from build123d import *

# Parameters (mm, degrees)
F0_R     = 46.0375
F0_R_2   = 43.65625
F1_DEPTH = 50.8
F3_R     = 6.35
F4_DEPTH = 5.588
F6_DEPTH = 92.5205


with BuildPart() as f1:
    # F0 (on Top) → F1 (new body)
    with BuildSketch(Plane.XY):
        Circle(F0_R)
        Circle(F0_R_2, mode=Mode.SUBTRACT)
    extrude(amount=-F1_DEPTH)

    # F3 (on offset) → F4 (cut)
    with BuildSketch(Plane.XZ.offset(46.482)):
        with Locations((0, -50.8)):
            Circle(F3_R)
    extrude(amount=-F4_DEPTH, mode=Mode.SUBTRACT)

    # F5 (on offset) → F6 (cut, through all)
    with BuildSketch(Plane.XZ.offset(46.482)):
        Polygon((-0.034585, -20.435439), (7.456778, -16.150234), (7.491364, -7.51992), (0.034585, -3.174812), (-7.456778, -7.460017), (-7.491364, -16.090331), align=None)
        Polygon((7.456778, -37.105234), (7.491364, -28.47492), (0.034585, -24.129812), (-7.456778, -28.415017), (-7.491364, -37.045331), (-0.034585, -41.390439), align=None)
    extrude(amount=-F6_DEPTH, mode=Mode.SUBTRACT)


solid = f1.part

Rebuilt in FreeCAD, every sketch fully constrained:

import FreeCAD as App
import Part
import Sketcher
from FreeCAD import Vector
Q = App.Units.Quantity

doc = App.newDocument("Part")
body = doc.addObject("PartDesign::Body", "Body")

sketch1 = doc.addObject("Sketcher::SketchObject", "Sketch")
body.addObject(sketch1)
sketch1.AttachmentSupport = (doc.XY_Plane, [""])
sketch1.MapMode = "FlatFace"
sketch1.addGeometry(Part.Circle(Vector(0, 0, 0), Vector(0, 0, 1), 46), False)
sketch1.addGeometry(Part.Circle(Vector(0, 0, 0), Vector(0, 0, 1), 44), False)
sketch1.addConstraint(Sketcher.Constraint("Coincident", 0, 3, -1, 1))
sketch1.addConstraint(Sketcher.Constraint("Coincident", 1, 3, -1, 1))
sketch1.addConstraint(Sketcher.Constraint("Diameter", 0, Q("3.625 in")))
sketch1.addConstraint(Sketcher.Constraint("Diameter", 1, Q("3.4375 in")))
pad1 = doc.addObject("PartDesign::Pad", "Pad")
body.addObject(pad1)
pad1.Profile = sketch1
pad1.Length = Q("2 in")
pad1.Reversed = True

sketch2 = doc.addObject("Sketcher::SketchObject", "Sketch001")
body.addObject(sketch2)
sketch2.AttachmentSupport = (doc.XZ_Plane, [""])
sketch2.MapMode = "FlatFace"
sketch2.AttachmentOffset = App.Placement(Vector(0, 0, 1.83 * 25.4), App.Rotation())
sketch2.addGeometry(Part.Circle(Vector(0, -51, 0), Vector(0, 0, 1), 6), False)
sketch2.addConstraint(Sketcher.Constraint("PointOnObject", 0, 3, -2))
sketch2.addConstraint(Sketcher.Constraint("Diameter", 0, Q("0.5 in")))
sketch2.addConstraint(Sketcher.Constraint("DistanceY", 0, 3, -1, 1, Q("2 in")))
pocket1 = doc.addObject("PartDesign::Pocket", "Pocket")
body.addObject(pocket1)
pocket1.Profile = sketch2
pocket1.Length = Q("0.22 in")

sketch3 = doc.addObject("Sketcher::SketchObject", "Sketch002")
body.addObject(sketch3)
sketch3.AttachmentSupport = (doc.XZ_Plane, [""])
sketch3.MapMode = "FlatFace"
sketch3.AttachmentOffset = App.Placement(Vector(0, 0, 1.83 * 25.4), App.Rotation())
sketch3.addGeometry(Part.LineSegment(Vector(-0.034585, -20.435439, 0), Vector(7.456778, -16.150234, 0)), False)
sketch3.addGeometry(Part.LineSegment(Vector(7.456778, -16.150234, 0), Vector(7.491364, -7.51992, 0)), False)
sketch3.addGeometry(Part.LineSegment(Vector(7.491364, -7.51992, 0), Vector(0.034585, -3.174812, 0)), False)
sketch3.addGeometry(Part.LineSegment(Vector(0.034585, -3.174812, 0), Vector(-7.456778, -7.460017, 0)), False)
sketch3.addGeometry(Part.LineSegment(Vector(-7.456778, -7.460017, 0), Vector(-7.491364, -16.090331, 0)), False)
sketch3.addGeometry(Part.LineSegment(Vector(-7.491364, -16.090331, 0), Vector(-0.034585, -20.435439, 0)), False)
sketch3.addGeometry(Part.LineSegment(Vector(7.456778, -37.105234, 0), Vector(7.491364, -28.47492, 0)), False)
sketch3.addGeometry(Part.LineSegment(Vector(7.491364, -28.47492, 0), Vector(0.034585, -24.129812, 0)), False)
sketch3.addGeometry(Part.LineSegment(Vector(0.034585, -24.129812, 0), Vector(-7.456778, -28.415017, 0)), False)
sketch3.addGeometry(Part.LineSegment(Vector(-7.456778, -28.415017, 0), Vector(-7.491364, -37.045331, 0)), False)
sketch3.addGeometry(Part.LineSegment(Vector(-7.491364, -37.045331, 0), Vector(-0.034585, -41.390439, 0)), False)
sketch3.addGeometry(Part.LineSegment(Vector(-0.034585, -41.390439, 0), Vector(7.456778, -37.105234, 0)), False)
sketch3.addConstraint(Sketcher.Constraint("Coincident", 0, 2, 1, 1))
sketch3.addConstraint(Sketcher.Constraint("Coincident", 1, 2, 2, 1))
sketch3.addConstraint(Sketcher.Constraint("Coincident", 2, 2, 3, 1))
sketch3.addConstraint(Sketcher.Constraint("Coincident", 3, 2, 4, 1))
sketch3.addConstraint(Sketcher.Constraint("Coincident", 4, 2, 5, 1))
sketch3.addConstraint(Sketcher.Constraint("Coincident", 5, 2, 0, 1))
sketch3.addConstraint(Sketcher.Constraint("Coincident", 6, 2, 7, 1))
sketch3.addConstraint(Sketcher.Constraint("Coincident", 7, 2, 8, 1))
sketch3.addConstraint(Sketcher.Constraint("Coincident", 8, 2, 9, 1))
sketch3.addConstraint(Sketcher.Constraint("Coincident", 9, 2, 10, 1))
sketch3.addConstraint(Sketcher.Constraint("Coincident", 10, 2, 11, 1))
sketch3.addConstraint(Sketcher.Constraint("Coincident", 11, 2, 6, 1))
sketch3.addConstraint(Sketcher.Constraint("Parallel", 0, 3))
sketch3.addConstraint(Sketcher.Constraint("Parallel", 1, 4))
sketch3.addConstraint(Sketcher.Constraint("Parallel", 2, 5))
sketch3.addConstraint(Sketcher.Constraint("Parallel", 4, 6))
sketch3.addConstraint(Sketcher.Constraint("Parallel", 5, 7))
sketch3.addConstraint(Sketcher.Constraint("Parallel", 3, 8))
sketch3.addConstraint(Sketcher.Constraint("Parallel", 6, 9))
sketch3.addConstraint(Sketcher.Constraint("Parallel", 7, 10))
sketch3.addConstraint(Sketcher.Constraint("Parallel", 8, 11))
sketch3.addConstraint(Sketcher.Constraint("Vertical", 1, 2, 6, 2))
sketch3.addConstraint(Sketcher.Constraint("Vertical", 2, 2, 7, 2))
sketch3.addConstraint(Sketcher.Constraint("Vertical", 3, 2, 8, 2))
sketch3.addConstraint(Sketcher.Constraint("Vertical", 4, 2, 9, 2))
sketch3.addConstraint(Sketcher.Constraint("Vertical", 5, 2, 10, 2))
sketch3.addConstraint(Sketcher.Constraint("Equal", 0, 1))
sketch3.addConstraint(Sketcher.Constraint("Equal", 1, 2))
sketch3.addConstraint(Sketcher.Constraint("Equal", 2, 3))
sketch3.addConstraint(Sketcher.Constraint("DistanceY", 6, 2, 1, 2, Q("0.825 in")))
sketch3.addConstraint(Sketcher.Constraint("DistanceY", 1, 2, -1, 1, 7.51992))
sketch3.addConstraint(Sketcher.Constraint("DistanceY", 4, 2, -1, 1, 16.090331))
sketch3.addConstraint(Sketcher.Constraint("DistanceY", 5, 2, -1, 1, 20.435439))
sketch3.addConstraint(Sketcher.Constraint("DistanceX", 2, 2, 1, 2, 7.456779))
sketch3.addConstraint(Sketcher.Constraint("DistanceX", 4, 2, 2, 2, 7.525949))
sketch3.addConstraint(Sketcher.Constraint("DistanceX", -1, 1, 0, 2, 7.456778))
pocket2 = doc.addObject("PartDesign::Pocket", "Pocket001")
body.addObject(pocket2)
pocket2.Profile = sketch3
pocket2.Type = "ThroughAll"

doc.recompute()
